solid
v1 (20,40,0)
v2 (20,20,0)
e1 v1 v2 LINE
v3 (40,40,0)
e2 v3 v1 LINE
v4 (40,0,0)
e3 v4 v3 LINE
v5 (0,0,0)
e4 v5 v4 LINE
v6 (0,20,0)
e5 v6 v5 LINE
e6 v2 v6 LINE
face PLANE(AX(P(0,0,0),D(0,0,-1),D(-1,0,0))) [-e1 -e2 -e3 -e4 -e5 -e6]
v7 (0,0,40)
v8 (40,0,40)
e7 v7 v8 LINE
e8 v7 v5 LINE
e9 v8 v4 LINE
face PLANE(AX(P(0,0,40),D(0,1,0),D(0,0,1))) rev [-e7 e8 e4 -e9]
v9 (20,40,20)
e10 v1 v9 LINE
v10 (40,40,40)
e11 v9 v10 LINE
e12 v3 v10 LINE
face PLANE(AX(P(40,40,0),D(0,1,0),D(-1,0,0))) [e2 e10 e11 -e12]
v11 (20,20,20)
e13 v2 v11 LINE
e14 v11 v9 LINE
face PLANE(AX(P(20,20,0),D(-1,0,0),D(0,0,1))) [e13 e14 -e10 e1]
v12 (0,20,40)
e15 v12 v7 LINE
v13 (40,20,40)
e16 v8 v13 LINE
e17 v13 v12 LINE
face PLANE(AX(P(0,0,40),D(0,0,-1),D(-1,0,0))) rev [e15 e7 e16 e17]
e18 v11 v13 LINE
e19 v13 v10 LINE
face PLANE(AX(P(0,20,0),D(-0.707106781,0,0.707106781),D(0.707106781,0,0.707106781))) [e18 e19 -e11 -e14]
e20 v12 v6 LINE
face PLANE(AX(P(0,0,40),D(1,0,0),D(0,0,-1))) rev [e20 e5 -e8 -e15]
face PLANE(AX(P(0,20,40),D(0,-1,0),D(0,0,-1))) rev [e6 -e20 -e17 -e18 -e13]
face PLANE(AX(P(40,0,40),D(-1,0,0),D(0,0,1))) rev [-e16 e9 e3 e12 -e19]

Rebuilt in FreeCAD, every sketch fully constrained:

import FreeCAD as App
import Part
import Sketcher


def add_polygon(sketch, points):
    """Adds a closed chain of lines whose ends are joined by coincident constraints."""
    first, n = sketch.GeometryCount, len(points)
    for a, b in zip(points, points[1:] + points[:1]):
        sketch.addGeometry(Part.LineSegment(App.Vector(*a, 0), App.Vector(*b, 0)), False)
    for i in range(n):
        sketch.addConstraint(Sketcher.Constraint("Coincident", first + i, 2, first + (i + 1) % n, 1))

doc = App.newDocument("Part")
params = doc.addObject("Spreadsheet::Sheet", "Params")
for row, (alias, value) in enumerate([
    ("sketch1_width", "40 mm"),
    ("sketch1_height", "20 mm"),
    ("pad1_length", "40 mm"),
    ("sketch2_width", "20 mm"),
    ("pad2_length", "40 mm"),
    ("sketch3_width", "20 mm"),
    ("pocket1_length", "20 mm"),
    ("sketch4_width", "20 mm"),
    ("pocket2_length", "20 mm"),
    ("sketch5_width", "20 mm"),
    ("pad3_length", "20 mm"),
    ("sketch6_width", "20 mm"),
    ("pad4_length", "20 mm"),
    ("sketch7_width", "20 mm"),
    ("pocket3_length", "20 mm"),
], start=1):
    params.set(f"A{row}", alias)
    params.set(f"B{row}", "=" + value)
    params.setAlias(f"B{row}", alias)

body = doc.addObject("PartDesign::Body", "Body")

sketch1 = doc.addObject("Sketcher::SketchObject", "Sketch")
body.addObject(sketch1)
sketch1.AttachmentSupport = (doc.XY_Plane, [""])
sketch1.MapMode = "FlatFace"
add_polygon(sketch1, [(0, 20), (0, 0), (40, 0), (40, 20)])
sketch1.addConstraint(Sketcher.Constraint("Vertical", 0))
sketch1.addConstraint(Sketcher.Constraint("Horizontal", 1))
sketch1.addConstraint(Sketcher.Constraint("Vertical", 2))
sketch1.addConstraint(Sketcher.Constraint("Horizontal", 3))
sketch1.addConstraint(Sketcher.Constraint("Coincident", 0, 2, -1, 1))
sketch1.addConstraint(Sketcher.Constraint("DistanceX", 1, 1, 1, 2, 40.0))
sketch1.addConstraint(Sketcher.Constraint("DistanceY", 0, 2, 0, 1, 20.0))
sketch1.setExpression("Constraints[9]", "Params.sketch1_width")
sketch1.setExpression("Constraints[10]", "Params.sketch1_height")
pad1 = doc.addObject("PartDesign::Pad", "Pad")
body.addObject(pad1)
pad1.Profile = sketch1
pad1.setExpression("Length", "Params.pad1_length")

sketch2 = doc.addObject("Sketcher::SketchObject", "Sketch001")
body.addObject(sketch2)
sketch2.AttachmentSupport = (doc.XY_Plane, [""])
sketch2.MapMode = "FlatFace"
sketch2.AttachmentOffset = App.Placement(App.Vector(0, 0, 40), App.Rotation())
add_polygon(sketch2, [(20, 40), (20, 20), (40, 20), (40, 40)])
sketch2.addConstraint(Sketcher.Constraint("Vertical", 0))
sketch2.addConstraint(Sketcher.Constraint("Horizontal", 1))
sketch2.addConstraint(Sketcher.Constraint("Vertical", 2))
sketch2.addConstraint(Sketcher.Constraint("Horizontal", 3))
sketch2.addConstraint(Sketcher.Constraint("Equal", 3, 0))
sketch2.addConstraint(Sketcher.Constraint("DistanceX", 1, 1, 1, 2, 20.0))
sketch2.addConstraint(Sketcher.Constraint("DistanceX", -1, 1, 0, 2, 20.0))
sketch2.addConstraint(Sketcher.Constraint("DistanceY", -1, 1, 0, 2, 20.0))
sketch2.setExpression("Constraints[9]", "Params.sketch2_width")
pad2 = doc.addObject("PartDesign::Pad", "Pad001")
body.addObject(pad2)
pad2.Profile = sketch2
pad2.setExpression("Length", "Params.pad2_length")
pad2.Reversed = True

sketch3 = doc.addObject("Sketcher::SketchObject", "Sketch002")
body.addObject(sketch3)
sketch3.AttachmentSupport = (doc.XZ_Plane, [""])
sketch3.MapMode = "FlatFace"
sketch3.AttachmentOffset = App.Placement(App.Vector(0, 0, -40), App.Rotation())
add_polygon(sketch3, [(40, 40), (40, 20), (20, 40)])
sketch3.addConstraint(Sketcher.Constraint("Vertical", 0))
sketch3.addConstraint(Sketcher.Constraint("Horizontal", 2))
sketch3.addConstraint(Sketcher.Constraint("Equal", 2, 0))
sketch3.addConstraint(Sketcher.Constraint("DistanceX", 2, 1, 2, 2, 20.0))
sketch3.addConstraint(Sketcher.Constraint("DistanceX", -1, 1, 0, 2, 40.0))
sketch3.addConstraint(Sketcher.Constraint("DistanceY", -1, 1, 0, 2, 20.0))
sketch3.setExpression("Constraints[6]", "Params.sketch3_width")
pocket1 = doc.addObject("PartDesign::Pocket", "Pocket")
body.addObject(pocket1)
pocket1.Profile = sketch3
pocket1.setExpression("Length", "Params.pocket1_length")
pocket1.Reversed = True

sketch4 = doc.addObject("Sketcher::SketchObject", "Sketch003")
body.addObject(sketch4)
sketch4.AttachmentSupport = (doc.XZ_Plane, [""])
sketch4.MapMode = "FlatFace"
sketch4.AttachmentOffset = App.Placement(App.Vector(0, 0, -40), App.Rotation())
add_polygon(sketch4, [(20, 20), (40, 0), (20, 0)])
sketch4.addConstraint(Sketcher.Constraint("Horizontal", 1))
sketch4.addConstraint(Sketcher.Constraint("Vertical", 2))
sketch4.addConstraint(Sketcher.Constraint("PointOnObject", 0, 2, -1))
sketch4.addConstraint(Sketcher.Constraint("Equal", 1, 2))
sketch4.addConstraint(Sketcher.Constraint("DistanceX", 1, 2, 1, 1, 20.0))
sketch4.addConstraint(Sketcher.Constraint("DistanceX", -1, 1, 0, 2, 40.0))
sketch4.setExpression("Constraints[7]", "Params.sketch4_width")
pocket2 = doc.addObject("PartDesign::Pocket", "Pocket001")
body.addObject(pocket2)
pocket2.Profile = sketch4
pocket2.setExpression("Length", "Params.pocket2_length")
pocket2.Reversed = True

sketch5 = doc.addObject("Sketcher::SketchObject", "Sketch004")
body.addObject(sketch5)
sketch5.AttachmentSupport = (doc.XZ_Plane, [""])
sketch5.MapMode = "FlatFace"
sketch5.AttachmentOffset = App.Placement(App.Vector(0, 0, -20), App.Rotation())
add_polygon(sketch5, [(20, 0), (20, 20), (40, 0)])
sketch5.addConstraint(Sketcher.Constraint("Vertical", 0))
sketch5.addConstraint(Sketcher.Constraint("Horizontal", 2))
sketch5.addConstraint(Sketcher.Constraint("PointOnObject", 1, 2, -1))
sketch5.addConstraint(Sketcher.Constraint("Equal", 2, 0))
sketch5.addConstraint(Sketcher.Constraint("DistanceX", 2, 2, 2, 1, 20.0))
sketch5.addConstraint(Sketcher.Constraint("DistanceX", -1, 1, 0, 2, 20.0))
sketch5.setExpression("Constraints[7]", "Params.sketch5_width")
pad3 = doc.addObject("PartDesign::Pad", "Pad002")
body.addObject(pad3)
pad3.Profile = sketch5
pad3.setExpression("Length", "Params.pad3_length")
pad3.Reversed = True

sketch6 = doc.addObject("Sketcher::SketchObject", "Sketch005")
body.addObject(sketch6)
sketch6.AttachmentSupport = (doc.XZ_Plane, [""])
sketch6.MapMode = "FlatFace"
sketch6.AttachmentOffset = App.Placement(App.Vector(0, 0, -20), App.Rotation())
add_polygon(sketch6, [(20, 40), (40, 40), (40, 20)])
sketch6.addConstraint(Sketcher.Constraint("Horizontal", 0))
sketch6.addConstraint(Sketcher.Constraint("Vertical", 1))
sketch6.addConstraint(Sketcher.Constraint("Equal", 0, 1))
sketch6.addConstraint(Sketcher.Constraint("DistanceX", 0, 1, 0, 2, 20.0))
sketch6.addConstraint(Sketcher.Constraint("DistanceX", -1, 1, 0, 2, 40.0))
sketch6.addConstraint(Sketcher.Constraint("DistanceY", -1, 1, 0, 2, 40.0))
sketch6.setExpression("Constraints[6]", "Params.sketch6_width")
pad4 = doc.addObject("PartDesign::Pad", "Pad003")
body.addObject(pad4)
pad4.Profile = sketch6
pad4.setExpression("Length", "Params.pad4_length")
pad4.Reversed = True

sketch7 = doc.addObject("Sketcher::SketchObject", "Sketch006")
body.addObject(sketch7)
sketch7.AttachmentSupport = (doc.XZ_Plane, [""])
sketch7.MapMode = "FlatFace"
sketch7.AttachmentOffset = App.Placement(App.Vector(0, 0, -40), App.Rotation())
add_polygon(sketch7, [(20, 20), (20, 40), (40, 40)])
sketch7.addConstraint(Sketcher.Constraint("Vertical", 0))
sketch7.addConstraint(Sketcher.Constraint("Horizontal", 1))
sketch7.addConstraint(Sketcher.Constraint("Equal", 1, 0))
sketch7.addConstraint(Sketcher.Constraint("DistanceX", 1, 1, 1, 2, 20.0))
sketch7.addConstraint(Sketcher.Constraint("DistanceX", -1, 1, 0, 2, 20.0))
sketch7.addConstraint(Sketcher.Constraint("DistanceY", -1, 1, 0, 2, 40.0))
sketch7.setExpression("Constraints[6]", "Params.sketch7_width")
pocket3 = doc.addObject("PartDesign::Pocket", "Pocket002")
body.addObject(pocket3)
pocket3.Profile = sketch7
pocket3.setExpression("Length", "Params.pocket3_length")
pocket3.Reversed = True

doc.recompute()
